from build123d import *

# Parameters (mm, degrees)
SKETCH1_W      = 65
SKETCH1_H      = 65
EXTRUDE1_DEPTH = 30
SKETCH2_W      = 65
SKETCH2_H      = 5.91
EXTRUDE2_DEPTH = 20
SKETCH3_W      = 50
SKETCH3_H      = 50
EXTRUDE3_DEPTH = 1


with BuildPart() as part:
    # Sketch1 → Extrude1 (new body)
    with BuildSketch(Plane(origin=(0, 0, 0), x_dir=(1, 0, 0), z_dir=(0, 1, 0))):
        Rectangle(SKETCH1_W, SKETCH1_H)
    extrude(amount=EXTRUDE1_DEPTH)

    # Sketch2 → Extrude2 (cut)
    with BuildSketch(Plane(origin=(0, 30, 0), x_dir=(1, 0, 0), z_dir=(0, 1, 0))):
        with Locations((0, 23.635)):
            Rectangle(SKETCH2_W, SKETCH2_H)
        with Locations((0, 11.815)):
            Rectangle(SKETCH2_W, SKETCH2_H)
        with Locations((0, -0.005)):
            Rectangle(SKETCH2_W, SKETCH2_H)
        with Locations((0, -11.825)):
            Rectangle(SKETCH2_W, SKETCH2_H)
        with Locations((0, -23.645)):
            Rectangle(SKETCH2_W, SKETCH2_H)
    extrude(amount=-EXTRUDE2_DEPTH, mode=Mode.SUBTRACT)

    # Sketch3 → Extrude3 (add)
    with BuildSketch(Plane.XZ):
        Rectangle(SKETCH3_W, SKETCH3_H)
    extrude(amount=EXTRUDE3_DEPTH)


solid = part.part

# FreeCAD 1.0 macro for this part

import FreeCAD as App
import Part
import Sketcher

V = App.Vector
Q = App.Units.Quantity

doc = App.newDocument("Part")
body = doc.addObject("PartDesign::Body", "Body")

sketch1 = body.newObject("Sketcher::SketchObject", "Sketch")
sketch1.AttachmentSupport = (doc.getObject("XZ_Plane"), [""])
sketch1.MapMode = "FlatFace"
sketch1.addGeometry([
    Part.LineSegment(V(-32, -32, 0), V(-32, 32, 0)),
    Part.LineSegment(V(-32, 32, 0), V(32, 32, 0)),
    Part.LineSegment(V(32, 32, 0), V(32, -32, 0)),
    Part.LineSegment(V(32, -32, 0), V(-32, -32, 0)),
], False)
sketch1.addConstraint([
    Sketcher.Constraint("Coincident", 0, 2, 1, 1),
    Sketcher.Constraint("Coincident", 1, 2, 2, 1),
    Sketcher.Constraint("Coincident", 2, 2, 3, 1),
    Sketcher.Constraint("Coincident", 3, 2, 0, 1),
    Sketcher.Constraint("Vertical", 0),
    Sketcher.Constraint("Horizontal", 1),
    Sketcher.Constraint("Vertical", 2),
    Sketcher.Constraint("Horizontal", 3),
    Sketcher.Constraint("Symmetric", 0, 2, 2, 2, -1, 1),
    Sketcher.Constraint("Equal", 3, 0),
    Sketcher.Constraint("DistanceX", 1, 1, 1, 2, Q("65 mm")),
])
pad1 = body.newObject("PartDesign::Pad", "Pad")
pad1.Profile = sketch1
pad1.Length = 30
pad1.Reversed = True

sketch2 = body.newObject("Sketcher::SketchObject", "Sketch001")
sketch2.AttachmentSupport = (doc.getObject("XZ_Plane"), [""])
sketch2.MapMode = "FlatFace"
sketch2.AttachmentOffset = App.Placement(V(0, 0, -30), App.Rotation())
sketch2.addGeometry([
    Part.LineSegment(V(-32, -27, 0), V(-32, -21, 0)),
    Part.LineSegment(V(-32, -21, 0), V(32, -21, 0)),
    Part.LineSegment(V(32, -21, 0), V(32, -27, 0)),
    Part.LineSegment(V(32, -27, 0), V(-32, -27, 0)),
    Part.LineSegment(V(-32, -15, 0), V(-32, -9, 0)),
    Part.LineSegment(V(-32, -9, 0), V(32, -9, 0)),
    Part.LineSegment(V(32, -9, 0), V(32, -15, 0)),
    Part.LineSegment(V(32, -15, 0), V(-32, -15, 0)),
    Part.LineSegment(V(-32, -3, 0), V(-32, 3, 0)),
    Part.LineSegment(V(-32, 3, 0), V(32, 3, 0)),
    Part.LineSegment(V(32, 3, 0), V(32, -3, 0)),
    Part.LineSegment(V(32, -3, 0), V(-32, -3, 0)),
    Part.LineSegment(V(-32, 9, 0), V(-32, 15, 0)),
    Part.LineSegment(V(-32, 15, 0), V(32, 15, 0)),
    Part.LineSegment(V(32, 15, 0), V(32, 9, 0)),
    Part.LineSegment(V(32, 9, 0), V(-32, 9, 0)),
    Part.LineSegment(V(-32, 21, 0), V(-32, 27, 0)),
    Part.LineSegment(V(-32, 27, 0), V(32, 27, 0)),
    Part.LineSegment(V(32, 27, 0), V(32, 21, 0)),
    Part.LineSegment(V(32, 21, 0), V(-32, 21, 0)),
], False)
sketch2.addConstraint([
    Sketcher.Constraint("Coincident", 0, 2, 1, 1),
    Sketcher.Constraint("Coincident", 1, 2, 2, 1),
    Sketcher.Constraint("Coincident", 2, 2, 3, 1),
    Sketcher.Constraint("Coincident", 3, 2, 0, 1),
    Sketcher.Constraint("Coincident", 4, 2, 5, 1),
    Sketcher.Constraint("Coincident", 5, 2, 6, 1),
    Sketcher.Constraint("Coincident", 6, 2, 7, 1),
    Sketcher.Constraint("Coincident", 7, 2, 4, 1),
    Sketcher.Constraint("Coincident", 8, 2, 9, 1),
    Sketcher.Constraint("Coincident", 9, 2, 10, 1),
    Sketcher.Constraint("Coincident", 10, 2, 11, 1),
    Sketcher.Constraint("Coincident", 11, 2, 8, 1),
    Sketcher.Constraint("Coincident", 12, 2, 13, 1),
    Sketcher.Constraint("Coincident", 13, 2, 14, 1),
    Sketcher.Constraint("Coincident", 14, 2, 15, 1),
    Sketcher.Constraint("Coincident", 15, 2, 12, 1),
    Sketcher.Constraint("Coincident", 16, 2, 17, 1),
    Sketcher.Constraint("Coincident", 17, 2, 18, 1),
    Sketcher.Constraint("Coincident", 18, 2, 19, 1),
    Sketcher.Constraint("Coincident", 19, 2, 16, 1),
    Sketcher.Constraint("Vertical", 0),
    Sketcher.Constraint("Horizontal", 1),
    Sketcher.Constraint("Vertical", 2),
    Sketcher.Constraint("Horizontal", 3),
    Sketcher.Constraint("Vertical", 4),
    Sketcher.Constraint("Horizontal", 5),
    Sketcher.Constraint("Vertical", 6),
    Sketcher.Constraint("Horizontal", 7),
    Sketcher.Constraint("Vertical", 8),
    Sketcher.Constraint("Horizontal", 9),
    Sketcher.Constraint("Vertical", 10),
    Sketcher.Constraint("Horizontal", 11),
    Sketcher.Constraint("Vertical", 12),
    Sketcher.Constraint("Horizontal", 13),
    Sketcher.Constraint("Vertical", 14),
    Sketcher.Constraint("Horizontal", 15),
    Sketcher.Constraint("Vertical", 16),
    Sketcher.Constraint("Horizontal", 17),
    Sketcher.Constraint("Vertical", 18),
    Sketcher.Constraint("Horizontal", 19),
    Sketcher.Constraint("Vertical", 3, 2, 4, 2),
    Sketcher.Constraint("Vertical", 2, 2, 5, 2),
    Sketcher.Constraint("Vertical", 7, 2, 8, 2),
    Sketcher.Constraint("Vertical", 6, 2, 9, 2),
    Sketcher.Constraint("Vertical", 11, 2, 12, 2),
    Sketcher.Constraint("Vertical", 10, 2, 13, 2),
    Sketcher.Constraint("Vertical", 15, 2, 16, 2),
    Sketcher.Constraint("Vertical", 14, 2, 17, 2),
    Sketcher.Constraint("Equal", 2, 4),
    Sketcher.Constraint("Equal", 6, 8),
    Sketcher.Constraint("Equal", 10, 12),
    Sketcher.Constraint("Equal", 14, 16),
    Sketcher.Constraint("DistanceX", 1, 1, 1, 2, Q("65 mm")),
    Sketcher.Constraint("DistanceY", 0, 1, 0, 2, Q("5.91 mm")),
    Sketcher.Constraint("DistanceX", 0, 2, -1, 1, Q("32.5 mm")),
    Sketcher.Constraint("DistanceY", -1, 1, 16, 2, Q("26.6 mm")),
    Sketcher.Constraint("DistanceY", 0, 2, -1, 1, Q("20.68 mm")),
    Sketcher.Constraint("DistanceY", 4, 2, -1, 1, Q("8.86 mm")),
    Sketcher.Constraint("DistanceY", -1, 1, 8, 2, Q("2.96 mm")),
    Sketcher.Constraint("DistanceY", -1, 1, 12, 2, Q("14.78 mm")),
])
pocket1 = body.newObject("PartDesign::Pocket", "Pocket")
pocket1.Profile = sketch2
pocket1.Length = 20
pocket1.Reversed = True

sketch3 = body.newObject("Sketcher::SketchObject", "Sketch002")
sketch3.AttachmentSupport = (doc.getObject("XZ_Plane"), [""])
sketch3.MapMode = "FlatFace"
sketch3.addGeometry([
    Part.LineSegment(V(-25, 25, 0), V(-25, -25, 0)),
    Part.LineSegment(V(-25, -25, 0), V(25, -25, 0)),
    Part.LineSegment(V(25, -25, 0), V(25, 25, 0)),
    Part.LineSegment(V(25, 25, 0), V(-25, 25, 0)),
], False)
sketch3.addConstraint([
    Sketcher.Constraint("Coincident", 0, 2, 1, 1),
    Sketcher.Constraint("Coincident", 1, 2, 2, 1),
    Sketcher.Constraint("Coincident", 2, 2, 3, 1),
    Sketcher.Constraint("Coincident", 3, 2, 0, 1),
    Sketcher.Constraint("Vertical", 0),
    Sketcher.Constraint("Horizontal", 1),
    Sketcher.Constraint("Vertical", 2),
    Sketcher.Constraint("Horizontal", 3),
    Sketcher.Constraint("Symmetric", 0, 2, 2, 2, -1, 1),
    Sketcher.Constraint("Equal", 3, 0),
    Sketcher.Constraint("DistanceX", 1, 1, 1, 2, Q("50 mm")),
])
pad2 = body.newObject("PartDesign::Pad", "Pad001")
pad2.Profile = sketch3
pad2.Length = 1

doc.recompute()
